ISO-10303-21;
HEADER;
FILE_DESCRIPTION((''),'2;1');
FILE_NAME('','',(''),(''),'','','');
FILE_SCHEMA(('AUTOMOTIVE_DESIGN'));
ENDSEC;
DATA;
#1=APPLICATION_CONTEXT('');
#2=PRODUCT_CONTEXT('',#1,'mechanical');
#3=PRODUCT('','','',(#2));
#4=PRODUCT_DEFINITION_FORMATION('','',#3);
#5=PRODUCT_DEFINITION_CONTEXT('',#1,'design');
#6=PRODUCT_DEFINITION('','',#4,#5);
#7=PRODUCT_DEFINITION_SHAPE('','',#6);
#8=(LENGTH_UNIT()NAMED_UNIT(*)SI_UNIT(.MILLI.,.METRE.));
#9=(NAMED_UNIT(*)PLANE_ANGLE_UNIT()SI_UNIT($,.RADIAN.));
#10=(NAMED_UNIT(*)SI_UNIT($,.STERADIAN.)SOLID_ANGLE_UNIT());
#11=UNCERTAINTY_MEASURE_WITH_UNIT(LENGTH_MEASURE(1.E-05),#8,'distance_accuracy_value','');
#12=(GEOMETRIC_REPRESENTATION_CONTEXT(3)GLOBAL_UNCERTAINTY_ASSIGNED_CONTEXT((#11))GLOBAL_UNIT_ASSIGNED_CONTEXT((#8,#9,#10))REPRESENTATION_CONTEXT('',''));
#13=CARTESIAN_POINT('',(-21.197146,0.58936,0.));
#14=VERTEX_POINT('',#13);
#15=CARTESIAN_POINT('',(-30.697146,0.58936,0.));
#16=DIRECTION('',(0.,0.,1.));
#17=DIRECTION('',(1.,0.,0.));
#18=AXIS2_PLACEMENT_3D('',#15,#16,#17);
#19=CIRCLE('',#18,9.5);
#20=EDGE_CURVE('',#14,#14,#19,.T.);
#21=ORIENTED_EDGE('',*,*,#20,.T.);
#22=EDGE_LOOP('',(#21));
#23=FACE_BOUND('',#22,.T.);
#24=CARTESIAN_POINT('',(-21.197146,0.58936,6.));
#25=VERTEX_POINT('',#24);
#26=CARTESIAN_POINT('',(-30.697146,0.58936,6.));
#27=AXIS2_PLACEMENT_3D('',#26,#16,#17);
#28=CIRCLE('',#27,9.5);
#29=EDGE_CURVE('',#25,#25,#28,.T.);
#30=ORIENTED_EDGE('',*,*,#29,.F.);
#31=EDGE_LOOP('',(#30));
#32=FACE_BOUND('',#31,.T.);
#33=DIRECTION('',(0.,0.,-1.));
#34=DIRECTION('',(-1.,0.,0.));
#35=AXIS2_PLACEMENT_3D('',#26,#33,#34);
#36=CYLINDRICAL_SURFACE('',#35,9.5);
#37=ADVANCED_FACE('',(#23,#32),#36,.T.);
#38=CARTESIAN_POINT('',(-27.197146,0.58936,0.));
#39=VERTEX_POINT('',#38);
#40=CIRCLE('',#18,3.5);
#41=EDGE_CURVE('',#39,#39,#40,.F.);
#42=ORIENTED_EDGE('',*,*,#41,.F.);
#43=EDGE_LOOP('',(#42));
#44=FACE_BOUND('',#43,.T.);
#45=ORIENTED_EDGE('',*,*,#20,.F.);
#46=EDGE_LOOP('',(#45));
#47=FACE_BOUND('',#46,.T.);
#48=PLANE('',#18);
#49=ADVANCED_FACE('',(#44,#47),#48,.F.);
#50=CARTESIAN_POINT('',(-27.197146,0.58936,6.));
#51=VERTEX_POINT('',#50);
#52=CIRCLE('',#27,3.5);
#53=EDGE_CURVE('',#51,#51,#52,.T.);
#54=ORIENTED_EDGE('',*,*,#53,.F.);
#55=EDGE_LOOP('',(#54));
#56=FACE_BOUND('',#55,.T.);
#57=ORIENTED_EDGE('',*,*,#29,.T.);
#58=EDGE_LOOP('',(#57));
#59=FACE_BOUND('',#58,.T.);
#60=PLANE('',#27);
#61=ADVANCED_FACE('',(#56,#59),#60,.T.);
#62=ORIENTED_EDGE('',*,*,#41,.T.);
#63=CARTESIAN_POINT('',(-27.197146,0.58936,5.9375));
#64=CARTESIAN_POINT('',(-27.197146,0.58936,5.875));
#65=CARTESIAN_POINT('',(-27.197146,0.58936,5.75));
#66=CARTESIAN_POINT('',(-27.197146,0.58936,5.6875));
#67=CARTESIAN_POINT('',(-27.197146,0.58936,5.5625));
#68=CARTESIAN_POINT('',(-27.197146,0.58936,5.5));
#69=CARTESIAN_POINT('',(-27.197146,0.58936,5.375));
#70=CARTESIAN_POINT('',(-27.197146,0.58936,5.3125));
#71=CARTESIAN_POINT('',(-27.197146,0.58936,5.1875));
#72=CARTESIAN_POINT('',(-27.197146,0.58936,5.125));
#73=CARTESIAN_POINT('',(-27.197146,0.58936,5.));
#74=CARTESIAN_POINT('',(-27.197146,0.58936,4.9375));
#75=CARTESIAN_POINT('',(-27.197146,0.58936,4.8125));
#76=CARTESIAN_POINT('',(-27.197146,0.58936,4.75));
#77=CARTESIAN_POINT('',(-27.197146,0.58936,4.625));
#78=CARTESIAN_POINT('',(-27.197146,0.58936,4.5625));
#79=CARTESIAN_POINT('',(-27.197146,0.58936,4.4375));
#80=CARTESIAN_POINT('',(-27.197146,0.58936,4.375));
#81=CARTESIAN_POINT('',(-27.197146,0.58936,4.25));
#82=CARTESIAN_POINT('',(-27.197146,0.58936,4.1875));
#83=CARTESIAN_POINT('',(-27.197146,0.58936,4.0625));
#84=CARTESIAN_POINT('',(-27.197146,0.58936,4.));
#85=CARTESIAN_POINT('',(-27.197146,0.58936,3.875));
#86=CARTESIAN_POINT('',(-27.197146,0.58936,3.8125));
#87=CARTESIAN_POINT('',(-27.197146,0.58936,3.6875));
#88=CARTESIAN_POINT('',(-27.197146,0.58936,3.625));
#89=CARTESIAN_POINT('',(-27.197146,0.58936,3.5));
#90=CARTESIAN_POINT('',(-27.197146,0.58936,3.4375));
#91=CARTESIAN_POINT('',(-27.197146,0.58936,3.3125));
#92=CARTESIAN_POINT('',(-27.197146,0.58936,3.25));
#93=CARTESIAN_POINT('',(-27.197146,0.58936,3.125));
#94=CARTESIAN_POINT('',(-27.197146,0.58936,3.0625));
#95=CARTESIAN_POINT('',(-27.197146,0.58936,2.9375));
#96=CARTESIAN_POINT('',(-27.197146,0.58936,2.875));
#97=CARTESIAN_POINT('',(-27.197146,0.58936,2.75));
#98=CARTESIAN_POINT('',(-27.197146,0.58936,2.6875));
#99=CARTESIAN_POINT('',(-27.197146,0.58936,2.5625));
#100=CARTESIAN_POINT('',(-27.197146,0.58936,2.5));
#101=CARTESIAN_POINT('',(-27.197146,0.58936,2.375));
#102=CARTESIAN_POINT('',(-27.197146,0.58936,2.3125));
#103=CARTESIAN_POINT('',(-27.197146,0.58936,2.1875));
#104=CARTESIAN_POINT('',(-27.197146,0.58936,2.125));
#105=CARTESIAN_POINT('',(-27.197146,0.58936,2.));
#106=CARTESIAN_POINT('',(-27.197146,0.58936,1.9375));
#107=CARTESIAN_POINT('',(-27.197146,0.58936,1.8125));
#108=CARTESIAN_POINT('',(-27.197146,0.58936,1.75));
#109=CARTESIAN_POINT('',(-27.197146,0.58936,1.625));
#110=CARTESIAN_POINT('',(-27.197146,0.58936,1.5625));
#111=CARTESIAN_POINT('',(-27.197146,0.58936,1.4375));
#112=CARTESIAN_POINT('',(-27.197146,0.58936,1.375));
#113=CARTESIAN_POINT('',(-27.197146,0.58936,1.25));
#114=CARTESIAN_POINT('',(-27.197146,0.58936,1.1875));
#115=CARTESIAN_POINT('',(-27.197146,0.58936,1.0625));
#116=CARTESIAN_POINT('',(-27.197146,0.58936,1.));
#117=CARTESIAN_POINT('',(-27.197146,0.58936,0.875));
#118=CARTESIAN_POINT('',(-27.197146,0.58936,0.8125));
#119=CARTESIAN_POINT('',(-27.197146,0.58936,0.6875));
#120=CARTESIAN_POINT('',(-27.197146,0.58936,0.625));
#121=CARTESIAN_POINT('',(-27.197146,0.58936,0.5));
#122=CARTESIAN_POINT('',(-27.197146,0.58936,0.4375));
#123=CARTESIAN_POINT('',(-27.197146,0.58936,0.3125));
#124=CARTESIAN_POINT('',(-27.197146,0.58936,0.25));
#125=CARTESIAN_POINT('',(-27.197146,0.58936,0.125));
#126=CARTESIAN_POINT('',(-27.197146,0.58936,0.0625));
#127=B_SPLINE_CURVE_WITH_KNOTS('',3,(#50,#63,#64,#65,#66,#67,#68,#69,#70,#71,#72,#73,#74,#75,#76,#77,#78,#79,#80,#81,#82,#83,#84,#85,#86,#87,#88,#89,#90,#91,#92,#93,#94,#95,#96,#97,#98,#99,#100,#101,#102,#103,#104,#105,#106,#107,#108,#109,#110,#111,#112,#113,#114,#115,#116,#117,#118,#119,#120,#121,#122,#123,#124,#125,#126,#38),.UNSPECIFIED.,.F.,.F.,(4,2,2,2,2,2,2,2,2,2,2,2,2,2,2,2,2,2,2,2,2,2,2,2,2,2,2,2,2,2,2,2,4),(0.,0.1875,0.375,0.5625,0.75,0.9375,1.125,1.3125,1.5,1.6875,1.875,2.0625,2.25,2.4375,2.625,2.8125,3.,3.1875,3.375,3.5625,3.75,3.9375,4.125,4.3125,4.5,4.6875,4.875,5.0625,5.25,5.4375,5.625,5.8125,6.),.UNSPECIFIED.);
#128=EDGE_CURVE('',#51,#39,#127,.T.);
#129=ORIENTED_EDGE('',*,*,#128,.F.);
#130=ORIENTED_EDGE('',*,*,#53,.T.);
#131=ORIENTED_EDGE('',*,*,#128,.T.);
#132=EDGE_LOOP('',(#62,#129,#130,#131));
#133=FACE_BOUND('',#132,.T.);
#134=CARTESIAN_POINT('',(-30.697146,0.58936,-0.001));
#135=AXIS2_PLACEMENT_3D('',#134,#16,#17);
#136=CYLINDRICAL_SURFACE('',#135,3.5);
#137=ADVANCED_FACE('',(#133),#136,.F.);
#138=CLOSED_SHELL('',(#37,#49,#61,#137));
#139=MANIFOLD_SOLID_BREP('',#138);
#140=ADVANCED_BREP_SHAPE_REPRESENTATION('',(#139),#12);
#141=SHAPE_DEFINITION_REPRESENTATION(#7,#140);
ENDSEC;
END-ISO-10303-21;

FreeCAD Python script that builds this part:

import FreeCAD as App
import Part
import Sketcher
Q = App.Units.Quantity

doc = App.newDocument("Part")
body = doc.addObject("PartDesign::Body", "Body")

# Sketch on XY plane
sketch1 = body.newObject("Sketcher::SketchObject", "Sketch")
sketch1.AttachmentSupport = (doc.getObject("XY_Plane"), [""])
sketch1.MapMode = "FlatFace"
sketch1.addGeometry(Part.Circle(App.Vector(-31, 1, 0), App.Vector(0, 0, 1), 10), False)
sketch1.addConstraint([
    Sketcher.Constraint("Diameter", 0, Q("19 mm")),
    Sketcher.Constraint("DistanceY", -1, 1, 0, 3, Q("0.58936 mm")),
    Sketcher.Constraint("DistanceX", 0, 3, -1, 1, Q("30.697146 mm")),
])
pad1 = body.newObject("PartDesign::Pad", "Pad")
pad1.Profile = sketch1
pad1.Length = 6

# Sketch on XY plane
sketch2 = body.newObject("Sketcher::SketchObject", "Sketch001")
sketch2.AttachmentSupport = (doc.getObject("XY_Plane"), [""])
sketch2.MapMode = "FlatFace"
sketch2.AttachmentOffset = App.Placement(App.Vector(0, 0, 6), App.Rotation())
sketch2.addGeometry(Part.Circle(App.Vector(-30.7, 0.6, 0), App.Vector(0, 0, 1), 3.5), False)
sketch2.addConstraint([
    Sketcher.Constraint("Diameter", 0, Q("7 mm")),
    Sketcher.Constraint("DistanceY", -1, 1, 0, 3, Q("0.58936 mm")),
    Sketcher.Constraint("DistanceX", 0, 3, -1, 1, Q("30.697146 mm")),
])
pocket1 = body.newObject("PartDesign::Pocket", "Pocket")
pocket1.Profile = sketch2
pocket1.Type = "UpToFirst"

doc.recompute()
